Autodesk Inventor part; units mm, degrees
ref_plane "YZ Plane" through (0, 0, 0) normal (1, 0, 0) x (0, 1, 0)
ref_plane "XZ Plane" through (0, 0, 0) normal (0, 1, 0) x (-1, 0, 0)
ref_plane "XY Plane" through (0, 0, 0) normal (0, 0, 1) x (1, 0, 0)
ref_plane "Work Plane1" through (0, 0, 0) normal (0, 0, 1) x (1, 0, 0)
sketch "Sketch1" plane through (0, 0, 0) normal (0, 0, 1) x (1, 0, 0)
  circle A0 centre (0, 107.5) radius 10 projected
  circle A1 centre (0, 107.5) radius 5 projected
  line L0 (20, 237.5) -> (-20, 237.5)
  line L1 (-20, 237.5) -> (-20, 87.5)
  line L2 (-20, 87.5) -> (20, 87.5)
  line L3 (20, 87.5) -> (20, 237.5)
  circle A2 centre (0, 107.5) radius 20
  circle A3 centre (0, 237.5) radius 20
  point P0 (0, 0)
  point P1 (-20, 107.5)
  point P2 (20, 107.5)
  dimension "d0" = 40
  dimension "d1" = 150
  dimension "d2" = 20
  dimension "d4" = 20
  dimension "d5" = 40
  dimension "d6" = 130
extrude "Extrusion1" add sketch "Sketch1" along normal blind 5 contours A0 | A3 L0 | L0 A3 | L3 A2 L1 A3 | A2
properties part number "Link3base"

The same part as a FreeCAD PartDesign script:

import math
import FreeCAD as App
import Part
import Sketcher
from FreeCAD import Vector

doc = App.newDocument("Part")
body = doc.addObject("PartDesign::Body", "Body")

sketch1 = body.newObject("Sketcher::SketchObject", "Sketch")
sketch1.AttachmentSupport = (doc.getObject("XY_Plane"), [""])
sketch1.MapMode = "FlatFace"
sketch1.addGeometry([
    Part.LineSegment(Vector(20, 107.5, 0), Vector(20, 237.5, 0)),
    Part.ArcOfCircle(Part.Circle(Vector(0, 237.5, 0), Vector(0, 0, 1), 20), math.radians(0), math.radians(180)),
    Part.LineSegment(Vector(-20, 237.5, 0), Vector(-20, 107.5, 0)),
    Part.ArcOfCircle(Part.Circle(Vector(0, 107.5, 0), Vector(0, 0, 1), 20), math.radians(180), math.radians(360)),
    Part.Circle(Vector(0, 107.5, 0), Vector(0, 0, 1), 5),
], False)
sketch1.addConstraint([
    Sketcher.Constraint("Tangent", 0, 2, 1, 1),
    Sketcher.Constraint("Tangent", 1, 2, 2, 1),
    Sketcher.Constraint("Tangent", 2, 2, 3, 1),
    Sketcher.Constraint("Tangent", 3, 2, 0, 1),
    Sketcher.Constraint("Vertical", 0),
    Sketcher.Constraint("Vertical", 2),
    Sketcher.Constraint("Coincident", 4, 3, 3, 3),
    Sketcher.Constraint("PointOnObject", 1, 3, -2),
    Sketcher.Constraint("Radius", 1, 20.0),
    Sketcher.Constraint("DistanceY", 0, 1, 0, 2, 130.0),
    Sketcher.Constraint("Diameter", 4, 10.0),
    Sketcher.Constraint("DistanceY", -1, 1, 1, 3, 237.5),
])
pad1 = body.newObject("PartDesign::Pad", "Pad")
pad1.Profile = sketch1
pad1.Length = 5

doc.recompute()
